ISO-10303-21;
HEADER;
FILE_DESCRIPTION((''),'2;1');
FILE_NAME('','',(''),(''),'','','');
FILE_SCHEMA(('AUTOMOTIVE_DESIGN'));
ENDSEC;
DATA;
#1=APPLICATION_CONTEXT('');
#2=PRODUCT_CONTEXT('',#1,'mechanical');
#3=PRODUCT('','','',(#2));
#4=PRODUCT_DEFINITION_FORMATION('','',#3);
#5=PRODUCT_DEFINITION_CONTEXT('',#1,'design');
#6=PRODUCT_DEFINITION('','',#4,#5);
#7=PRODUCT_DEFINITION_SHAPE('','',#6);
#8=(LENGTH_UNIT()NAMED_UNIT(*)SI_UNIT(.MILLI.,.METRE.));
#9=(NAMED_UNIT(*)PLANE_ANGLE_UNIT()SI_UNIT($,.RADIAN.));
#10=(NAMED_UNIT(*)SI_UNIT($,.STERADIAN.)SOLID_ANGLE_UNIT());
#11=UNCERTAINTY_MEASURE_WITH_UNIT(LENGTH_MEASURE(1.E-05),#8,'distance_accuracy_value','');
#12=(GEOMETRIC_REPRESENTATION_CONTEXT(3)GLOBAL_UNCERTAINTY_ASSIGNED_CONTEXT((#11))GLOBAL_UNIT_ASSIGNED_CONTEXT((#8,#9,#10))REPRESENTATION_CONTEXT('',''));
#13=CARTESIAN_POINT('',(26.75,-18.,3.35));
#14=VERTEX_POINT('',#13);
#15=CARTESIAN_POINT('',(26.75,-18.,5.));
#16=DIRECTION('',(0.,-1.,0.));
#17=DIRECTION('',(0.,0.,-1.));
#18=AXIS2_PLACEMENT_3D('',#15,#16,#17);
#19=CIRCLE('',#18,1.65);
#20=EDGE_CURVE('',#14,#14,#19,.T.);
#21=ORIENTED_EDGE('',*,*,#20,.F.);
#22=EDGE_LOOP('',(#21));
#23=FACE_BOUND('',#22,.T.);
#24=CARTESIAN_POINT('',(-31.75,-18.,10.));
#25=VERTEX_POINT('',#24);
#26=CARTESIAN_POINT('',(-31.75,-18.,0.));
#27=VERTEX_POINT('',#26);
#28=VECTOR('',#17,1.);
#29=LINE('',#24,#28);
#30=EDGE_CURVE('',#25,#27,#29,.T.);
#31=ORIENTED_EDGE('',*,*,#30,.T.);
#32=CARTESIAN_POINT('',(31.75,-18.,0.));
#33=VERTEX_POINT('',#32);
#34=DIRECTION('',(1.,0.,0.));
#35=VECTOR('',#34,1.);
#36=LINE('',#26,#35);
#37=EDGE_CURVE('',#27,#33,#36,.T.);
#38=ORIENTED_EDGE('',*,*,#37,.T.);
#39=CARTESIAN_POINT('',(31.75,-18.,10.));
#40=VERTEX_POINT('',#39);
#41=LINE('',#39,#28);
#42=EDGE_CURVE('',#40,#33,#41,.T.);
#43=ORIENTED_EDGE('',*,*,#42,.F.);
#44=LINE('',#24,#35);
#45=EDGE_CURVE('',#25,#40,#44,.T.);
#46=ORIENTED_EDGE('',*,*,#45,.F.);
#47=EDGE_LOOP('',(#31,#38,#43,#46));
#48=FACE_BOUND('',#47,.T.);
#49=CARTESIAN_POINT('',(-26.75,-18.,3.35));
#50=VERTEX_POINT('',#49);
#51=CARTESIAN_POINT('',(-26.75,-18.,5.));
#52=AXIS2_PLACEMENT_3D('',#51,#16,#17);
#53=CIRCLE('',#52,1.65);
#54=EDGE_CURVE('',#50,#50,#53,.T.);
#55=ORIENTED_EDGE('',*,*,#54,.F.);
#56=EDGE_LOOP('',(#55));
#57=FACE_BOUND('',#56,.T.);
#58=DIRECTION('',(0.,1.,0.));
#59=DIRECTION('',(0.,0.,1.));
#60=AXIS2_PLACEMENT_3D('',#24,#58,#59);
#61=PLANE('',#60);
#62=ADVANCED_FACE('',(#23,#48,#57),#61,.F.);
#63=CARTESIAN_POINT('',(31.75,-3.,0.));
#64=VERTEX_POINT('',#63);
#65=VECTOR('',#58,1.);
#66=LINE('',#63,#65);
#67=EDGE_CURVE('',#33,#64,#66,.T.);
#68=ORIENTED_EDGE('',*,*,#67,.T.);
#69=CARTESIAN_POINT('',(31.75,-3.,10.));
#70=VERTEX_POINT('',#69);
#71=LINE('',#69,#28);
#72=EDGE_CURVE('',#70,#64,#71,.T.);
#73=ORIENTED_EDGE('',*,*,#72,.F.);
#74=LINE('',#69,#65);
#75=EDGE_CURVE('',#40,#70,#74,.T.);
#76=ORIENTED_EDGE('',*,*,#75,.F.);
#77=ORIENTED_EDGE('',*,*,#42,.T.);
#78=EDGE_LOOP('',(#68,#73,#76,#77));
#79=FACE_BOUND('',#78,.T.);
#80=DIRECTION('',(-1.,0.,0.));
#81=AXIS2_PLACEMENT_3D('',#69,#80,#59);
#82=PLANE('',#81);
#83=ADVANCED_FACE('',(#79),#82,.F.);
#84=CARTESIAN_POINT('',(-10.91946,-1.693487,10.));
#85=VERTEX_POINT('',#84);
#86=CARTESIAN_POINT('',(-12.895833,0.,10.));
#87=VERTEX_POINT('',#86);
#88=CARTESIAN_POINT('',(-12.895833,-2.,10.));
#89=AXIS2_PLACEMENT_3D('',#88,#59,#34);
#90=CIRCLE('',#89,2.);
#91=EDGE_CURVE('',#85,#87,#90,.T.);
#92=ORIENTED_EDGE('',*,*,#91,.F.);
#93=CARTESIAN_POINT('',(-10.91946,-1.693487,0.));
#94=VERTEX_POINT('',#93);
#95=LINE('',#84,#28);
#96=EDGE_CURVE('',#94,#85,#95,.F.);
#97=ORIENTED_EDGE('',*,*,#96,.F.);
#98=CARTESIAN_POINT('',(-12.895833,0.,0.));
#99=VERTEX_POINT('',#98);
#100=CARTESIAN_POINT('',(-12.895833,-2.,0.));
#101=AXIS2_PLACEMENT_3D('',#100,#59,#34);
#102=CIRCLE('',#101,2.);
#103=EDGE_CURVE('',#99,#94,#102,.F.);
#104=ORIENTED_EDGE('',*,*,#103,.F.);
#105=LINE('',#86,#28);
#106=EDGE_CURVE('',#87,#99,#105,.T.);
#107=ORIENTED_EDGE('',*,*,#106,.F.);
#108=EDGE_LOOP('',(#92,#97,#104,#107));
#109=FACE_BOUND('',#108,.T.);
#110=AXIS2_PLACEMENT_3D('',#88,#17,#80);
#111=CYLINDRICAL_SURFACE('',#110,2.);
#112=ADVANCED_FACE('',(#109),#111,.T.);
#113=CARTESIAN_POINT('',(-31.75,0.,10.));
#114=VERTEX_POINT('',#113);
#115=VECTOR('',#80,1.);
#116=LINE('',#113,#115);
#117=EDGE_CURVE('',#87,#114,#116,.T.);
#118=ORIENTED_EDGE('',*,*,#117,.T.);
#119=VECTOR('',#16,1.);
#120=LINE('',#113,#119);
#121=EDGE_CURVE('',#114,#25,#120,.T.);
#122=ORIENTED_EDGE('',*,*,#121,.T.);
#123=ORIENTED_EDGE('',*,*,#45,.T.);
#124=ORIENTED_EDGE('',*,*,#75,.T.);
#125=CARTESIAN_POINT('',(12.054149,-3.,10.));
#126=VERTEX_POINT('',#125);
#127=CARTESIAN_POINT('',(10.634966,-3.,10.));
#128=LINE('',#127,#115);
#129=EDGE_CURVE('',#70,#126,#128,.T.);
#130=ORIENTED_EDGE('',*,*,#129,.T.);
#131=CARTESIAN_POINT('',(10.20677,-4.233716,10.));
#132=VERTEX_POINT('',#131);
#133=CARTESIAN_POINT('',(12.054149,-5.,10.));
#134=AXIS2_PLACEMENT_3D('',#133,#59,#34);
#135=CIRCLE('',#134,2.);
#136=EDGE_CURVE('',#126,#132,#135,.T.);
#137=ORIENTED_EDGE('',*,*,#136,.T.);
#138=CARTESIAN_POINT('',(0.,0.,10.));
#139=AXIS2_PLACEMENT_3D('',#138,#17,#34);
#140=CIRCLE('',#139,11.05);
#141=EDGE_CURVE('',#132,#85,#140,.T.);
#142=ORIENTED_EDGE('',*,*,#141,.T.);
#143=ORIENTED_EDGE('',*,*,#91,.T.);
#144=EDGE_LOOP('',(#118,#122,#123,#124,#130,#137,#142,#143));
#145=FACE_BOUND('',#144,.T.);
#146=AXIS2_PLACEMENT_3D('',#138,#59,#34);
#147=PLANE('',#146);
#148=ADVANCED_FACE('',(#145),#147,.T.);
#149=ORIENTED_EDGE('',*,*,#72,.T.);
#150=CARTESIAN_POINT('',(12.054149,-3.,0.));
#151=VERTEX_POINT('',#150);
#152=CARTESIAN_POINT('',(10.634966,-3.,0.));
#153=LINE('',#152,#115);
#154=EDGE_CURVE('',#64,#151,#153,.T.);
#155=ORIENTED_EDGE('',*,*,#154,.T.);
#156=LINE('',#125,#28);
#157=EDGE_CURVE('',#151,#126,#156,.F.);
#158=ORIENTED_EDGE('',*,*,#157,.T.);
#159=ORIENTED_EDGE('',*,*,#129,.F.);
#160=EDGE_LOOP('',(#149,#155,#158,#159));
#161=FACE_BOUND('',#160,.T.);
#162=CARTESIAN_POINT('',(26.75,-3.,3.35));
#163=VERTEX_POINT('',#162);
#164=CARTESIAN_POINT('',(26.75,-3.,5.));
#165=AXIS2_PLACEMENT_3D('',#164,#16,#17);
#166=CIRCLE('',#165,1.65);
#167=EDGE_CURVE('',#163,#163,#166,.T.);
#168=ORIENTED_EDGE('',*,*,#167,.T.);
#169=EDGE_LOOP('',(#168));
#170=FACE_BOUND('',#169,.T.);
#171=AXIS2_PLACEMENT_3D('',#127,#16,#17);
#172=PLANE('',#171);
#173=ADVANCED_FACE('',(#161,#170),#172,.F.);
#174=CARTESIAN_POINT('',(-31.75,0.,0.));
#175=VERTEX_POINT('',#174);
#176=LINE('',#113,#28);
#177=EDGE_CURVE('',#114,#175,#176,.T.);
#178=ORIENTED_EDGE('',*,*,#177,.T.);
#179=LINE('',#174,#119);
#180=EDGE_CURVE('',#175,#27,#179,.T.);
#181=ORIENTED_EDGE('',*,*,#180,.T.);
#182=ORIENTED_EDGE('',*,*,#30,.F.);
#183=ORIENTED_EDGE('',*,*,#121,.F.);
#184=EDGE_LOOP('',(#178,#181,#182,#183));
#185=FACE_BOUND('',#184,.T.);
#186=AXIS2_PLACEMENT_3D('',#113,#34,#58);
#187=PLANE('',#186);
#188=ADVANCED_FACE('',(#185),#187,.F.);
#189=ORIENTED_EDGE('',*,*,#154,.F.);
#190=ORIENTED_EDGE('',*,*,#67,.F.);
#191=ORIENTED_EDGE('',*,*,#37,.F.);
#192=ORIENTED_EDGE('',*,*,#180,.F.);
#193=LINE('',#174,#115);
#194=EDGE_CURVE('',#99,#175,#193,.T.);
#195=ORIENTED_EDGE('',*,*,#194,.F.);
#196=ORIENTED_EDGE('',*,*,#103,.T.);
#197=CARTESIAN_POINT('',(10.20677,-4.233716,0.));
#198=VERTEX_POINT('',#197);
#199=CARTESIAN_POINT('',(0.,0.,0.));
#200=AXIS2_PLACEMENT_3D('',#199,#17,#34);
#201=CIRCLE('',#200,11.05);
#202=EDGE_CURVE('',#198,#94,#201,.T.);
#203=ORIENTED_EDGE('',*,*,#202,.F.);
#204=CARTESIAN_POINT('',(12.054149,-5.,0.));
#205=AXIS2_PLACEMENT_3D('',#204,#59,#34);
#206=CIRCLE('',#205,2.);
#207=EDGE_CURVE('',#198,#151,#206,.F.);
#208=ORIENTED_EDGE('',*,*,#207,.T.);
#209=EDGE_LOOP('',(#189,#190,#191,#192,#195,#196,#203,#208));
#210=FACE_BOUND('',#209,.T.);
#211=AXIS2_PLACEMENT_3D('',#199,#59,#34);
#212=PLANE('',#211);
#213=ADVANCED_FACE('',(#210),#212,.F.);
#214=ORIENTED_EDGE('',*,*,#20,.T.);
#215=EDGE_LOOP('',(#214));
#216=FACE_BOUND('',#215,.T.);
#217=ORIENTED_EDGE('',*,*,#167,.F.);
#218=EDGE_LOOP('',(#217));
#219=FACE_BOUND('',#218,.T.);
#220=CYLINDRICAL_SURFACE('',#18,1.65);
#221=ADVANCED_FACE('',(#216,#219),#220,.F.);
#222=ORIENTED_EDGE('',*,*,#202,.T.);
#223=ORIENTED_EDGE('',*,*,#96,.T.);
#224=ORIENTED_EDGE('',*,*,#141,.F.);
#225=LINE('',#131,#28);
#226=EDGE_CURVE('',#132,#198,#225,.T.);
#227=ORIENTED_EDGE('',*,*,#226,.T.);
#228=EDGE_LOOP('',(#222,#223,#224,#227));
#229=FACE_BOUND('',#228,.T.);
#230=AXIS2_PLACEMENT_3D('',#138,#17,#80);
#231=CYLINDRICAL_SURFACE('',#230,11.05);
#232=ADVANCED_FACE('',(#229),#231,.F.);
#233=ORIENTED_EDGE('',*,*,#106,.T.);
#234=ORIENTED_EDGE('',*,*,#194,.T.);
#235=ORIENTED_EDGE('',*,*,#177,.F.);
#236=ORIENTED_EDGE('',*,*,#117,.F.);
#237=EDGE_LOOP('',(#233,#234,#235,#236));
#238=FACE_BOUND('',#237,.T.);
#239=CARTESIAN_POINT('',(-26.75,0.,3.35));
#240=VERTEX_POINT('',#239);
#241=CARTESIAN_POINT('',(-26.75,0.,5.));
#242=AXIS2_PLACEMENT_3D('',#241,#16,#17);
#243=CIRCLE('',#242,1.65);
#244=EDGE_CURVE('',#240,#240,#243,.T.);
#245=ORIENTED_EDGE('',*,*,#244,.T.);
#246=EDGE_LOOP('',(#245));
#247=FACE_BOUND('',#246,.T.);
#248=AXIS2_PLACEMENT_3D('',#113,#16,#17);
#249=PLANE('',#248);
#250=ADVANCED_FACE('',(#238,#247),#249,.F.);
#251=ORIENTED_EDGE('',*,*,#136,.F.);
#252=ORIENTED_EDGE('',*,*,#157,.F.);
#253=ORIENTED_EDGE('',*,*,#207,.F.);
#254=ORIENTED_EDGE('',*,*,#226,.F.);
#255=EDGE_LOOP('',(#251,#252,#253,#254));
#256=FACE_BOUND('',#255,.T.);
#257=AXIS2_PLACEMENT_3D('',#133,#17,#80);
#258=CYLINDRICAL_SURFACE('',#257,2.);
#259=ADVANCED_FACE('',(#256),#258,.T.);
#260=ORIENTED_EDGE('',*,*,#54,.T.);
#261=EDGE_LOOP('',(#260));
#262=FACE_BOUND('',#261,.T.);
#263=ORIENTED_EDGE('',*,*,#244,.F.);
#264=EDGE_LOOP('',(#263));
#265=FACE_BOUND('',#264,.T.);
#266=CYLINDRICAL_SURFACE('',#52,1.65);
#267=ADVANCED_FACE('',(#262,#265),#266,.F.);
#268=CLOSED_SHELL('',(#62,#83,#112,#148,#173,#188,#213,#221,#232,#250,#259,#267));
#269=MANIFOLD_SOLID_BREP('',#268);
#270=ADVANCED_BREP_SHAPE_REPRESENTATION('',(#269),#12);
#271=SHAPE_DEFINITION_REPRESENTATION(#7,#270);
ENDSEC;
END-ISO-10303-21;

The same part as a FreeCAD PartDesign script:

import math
import FreeCAD as App
import Part
import Sketcher


def edges_at(feature, points):
    """Names of the edges that pass closest to the given points."""
    edges = feature.Shape.Edges
    near = lambda p: min(range(len(edges)), key=lambda i: edges[i].distToShape(Part.Vertex(*p))[0])
    return sorted({f"Edge{near(p) + 1}" for p in points})

doc = App.newDocument("Part")
body = doc.addObject("PartDesign::Body", "Body")

# Sketch on XY plane
sketch1 = body.newObject("Sketcher::SketchObject", "Sketch")
sketch1.AttachmentSupport = (doc.getObject("XY_Plane"), [""])
sketch1.MapMode = "FlatFace"
sketch1.addGeometry([
    Part.LineSegment(App.Vector(-11.05, 0, 0), App.Vector(-31.75, 0, 0)),  # 0
    Part.LineSegment(App.Vector(-31.75, 0, 0), App.Vector(-31.75, -18, 0)),  # 1
    Part.LineSegment(App.Vector(-31.75, -18, 0), App.Vector(31.75, -18, 0)),  # 2
    Part.LineSegment(App.Vector(31.75, -18, 0), App.Vector(31.75, -3, 0)),  # 3
    Part.LineSegment(App.Vector(31.75, -3, 0), App.Vector(10.634966, -3, 0)),  # 4
    Part.ArcOfCircle(Part.Circle(App.Vector(0, 0, 0), App.Vector(0, 0, 1), 11.05), math.radians(180), math.radians(344.246859)),  # 5
], False)
sketch1.addConstraint([
    Sketcher.Constraint("Coincident", 0, 2, 1, 1),
    Sketcher.Constraint("Coincident", 1, 2, 2, 1),
    Sketcher.Constraint("Coincident", 2, 2, 3, 1),
    Sketcher.Constraint("Coincident", 3, 2, 4, 1),
    Sketcher.Constraint("Coincident", 4, 2, 5, 2),
    Sketcher.Constraint("Coincident", 5, 1, 0, 1),
    Sketcher.Constraint("Horizontal", 0),
    Sketcher.Constraint("Vertical", 1),
    Sketcher.Constraint("Horizontal", 2),
    Sketcher.Constraint("Vertical", 3),
    Sketcher.Constraint("Horizontal", 4),
    Sketcher.Constraint("Coincident", 5, 3, -1, 1),
    Sketcher.Constraint("PointOnObject", 0, 2, -1),
    Sketcher.Constraint("DistanceY", 1, 2, 1, 1, 18.0),
    Sketcher.Constraint("DistanceY", 3, 1, 3, 2, 15.0),
    Sketcher.Constraint("Radius", 5, 11.05),
    Sketcher.Constraint("DistanceX", 0, 2, 0, 1, 20.7),
    Sketcher.Constraint("DistanceX", 2, 1, 2, 2, 63.5),
])
pad1 = body.newObject("PartDesign::Pad", "Pad")
pad1.Profile = sketch1
pad1.Length = 10

# Sketch on XZ plane
sketch2 = body.newObject("Sketcher::SketchObject", "Sketch001")
sketch2.AttachmentSupport = (doc.getObject("XZ_Plane"), [""])
sketch2.MapMode = "FlatFace"
sketch2.AttachmentOffset = App.Placement(App.Vector(0, 0, 18), App.Rotation())
sketch2.addGeometry([
    Part.Circle(App.Vector(-26.75, 5, 0), App.Vector(0, 0, 1), 1.65),
    Part.Circle(App.Vector(26.75, 5, 0), App.Vector(0, 0, 1), 1.65),
], False)
sketch2.addConstraint([
    Sketcher.Constraint("Equal", 0, 1),
    Sketcher.Constraint("Symmetric", 0, 3, 1, 3, -2),
    Sketcher.Constraint("Diameter", 0, 3.3),
    Sketcher.Constraint("DistanceY", -1, 1, 0, 3, 5.0),
    Sketcher.Constraint("DistanceX", 0, 3, 1, 3, 53.5),
])
doc.recompute()
hole = body.newObject("PartDesign::Hole", "Hole")
hole.Profile = sketch2
hole.ThreadType = "None"
hole.Diameter = 3.3
hole.DepthType = "ThroughAll"
doc.recompute()

fillet = body.newObject("PartDesign::Fillet", "Fillet")
fillet.Base = (hole, edges_at(hole, [(-11.05, 0, 5), (10.635, -3, 5)]))
fillet.Radius = 2

doc.recompute()
